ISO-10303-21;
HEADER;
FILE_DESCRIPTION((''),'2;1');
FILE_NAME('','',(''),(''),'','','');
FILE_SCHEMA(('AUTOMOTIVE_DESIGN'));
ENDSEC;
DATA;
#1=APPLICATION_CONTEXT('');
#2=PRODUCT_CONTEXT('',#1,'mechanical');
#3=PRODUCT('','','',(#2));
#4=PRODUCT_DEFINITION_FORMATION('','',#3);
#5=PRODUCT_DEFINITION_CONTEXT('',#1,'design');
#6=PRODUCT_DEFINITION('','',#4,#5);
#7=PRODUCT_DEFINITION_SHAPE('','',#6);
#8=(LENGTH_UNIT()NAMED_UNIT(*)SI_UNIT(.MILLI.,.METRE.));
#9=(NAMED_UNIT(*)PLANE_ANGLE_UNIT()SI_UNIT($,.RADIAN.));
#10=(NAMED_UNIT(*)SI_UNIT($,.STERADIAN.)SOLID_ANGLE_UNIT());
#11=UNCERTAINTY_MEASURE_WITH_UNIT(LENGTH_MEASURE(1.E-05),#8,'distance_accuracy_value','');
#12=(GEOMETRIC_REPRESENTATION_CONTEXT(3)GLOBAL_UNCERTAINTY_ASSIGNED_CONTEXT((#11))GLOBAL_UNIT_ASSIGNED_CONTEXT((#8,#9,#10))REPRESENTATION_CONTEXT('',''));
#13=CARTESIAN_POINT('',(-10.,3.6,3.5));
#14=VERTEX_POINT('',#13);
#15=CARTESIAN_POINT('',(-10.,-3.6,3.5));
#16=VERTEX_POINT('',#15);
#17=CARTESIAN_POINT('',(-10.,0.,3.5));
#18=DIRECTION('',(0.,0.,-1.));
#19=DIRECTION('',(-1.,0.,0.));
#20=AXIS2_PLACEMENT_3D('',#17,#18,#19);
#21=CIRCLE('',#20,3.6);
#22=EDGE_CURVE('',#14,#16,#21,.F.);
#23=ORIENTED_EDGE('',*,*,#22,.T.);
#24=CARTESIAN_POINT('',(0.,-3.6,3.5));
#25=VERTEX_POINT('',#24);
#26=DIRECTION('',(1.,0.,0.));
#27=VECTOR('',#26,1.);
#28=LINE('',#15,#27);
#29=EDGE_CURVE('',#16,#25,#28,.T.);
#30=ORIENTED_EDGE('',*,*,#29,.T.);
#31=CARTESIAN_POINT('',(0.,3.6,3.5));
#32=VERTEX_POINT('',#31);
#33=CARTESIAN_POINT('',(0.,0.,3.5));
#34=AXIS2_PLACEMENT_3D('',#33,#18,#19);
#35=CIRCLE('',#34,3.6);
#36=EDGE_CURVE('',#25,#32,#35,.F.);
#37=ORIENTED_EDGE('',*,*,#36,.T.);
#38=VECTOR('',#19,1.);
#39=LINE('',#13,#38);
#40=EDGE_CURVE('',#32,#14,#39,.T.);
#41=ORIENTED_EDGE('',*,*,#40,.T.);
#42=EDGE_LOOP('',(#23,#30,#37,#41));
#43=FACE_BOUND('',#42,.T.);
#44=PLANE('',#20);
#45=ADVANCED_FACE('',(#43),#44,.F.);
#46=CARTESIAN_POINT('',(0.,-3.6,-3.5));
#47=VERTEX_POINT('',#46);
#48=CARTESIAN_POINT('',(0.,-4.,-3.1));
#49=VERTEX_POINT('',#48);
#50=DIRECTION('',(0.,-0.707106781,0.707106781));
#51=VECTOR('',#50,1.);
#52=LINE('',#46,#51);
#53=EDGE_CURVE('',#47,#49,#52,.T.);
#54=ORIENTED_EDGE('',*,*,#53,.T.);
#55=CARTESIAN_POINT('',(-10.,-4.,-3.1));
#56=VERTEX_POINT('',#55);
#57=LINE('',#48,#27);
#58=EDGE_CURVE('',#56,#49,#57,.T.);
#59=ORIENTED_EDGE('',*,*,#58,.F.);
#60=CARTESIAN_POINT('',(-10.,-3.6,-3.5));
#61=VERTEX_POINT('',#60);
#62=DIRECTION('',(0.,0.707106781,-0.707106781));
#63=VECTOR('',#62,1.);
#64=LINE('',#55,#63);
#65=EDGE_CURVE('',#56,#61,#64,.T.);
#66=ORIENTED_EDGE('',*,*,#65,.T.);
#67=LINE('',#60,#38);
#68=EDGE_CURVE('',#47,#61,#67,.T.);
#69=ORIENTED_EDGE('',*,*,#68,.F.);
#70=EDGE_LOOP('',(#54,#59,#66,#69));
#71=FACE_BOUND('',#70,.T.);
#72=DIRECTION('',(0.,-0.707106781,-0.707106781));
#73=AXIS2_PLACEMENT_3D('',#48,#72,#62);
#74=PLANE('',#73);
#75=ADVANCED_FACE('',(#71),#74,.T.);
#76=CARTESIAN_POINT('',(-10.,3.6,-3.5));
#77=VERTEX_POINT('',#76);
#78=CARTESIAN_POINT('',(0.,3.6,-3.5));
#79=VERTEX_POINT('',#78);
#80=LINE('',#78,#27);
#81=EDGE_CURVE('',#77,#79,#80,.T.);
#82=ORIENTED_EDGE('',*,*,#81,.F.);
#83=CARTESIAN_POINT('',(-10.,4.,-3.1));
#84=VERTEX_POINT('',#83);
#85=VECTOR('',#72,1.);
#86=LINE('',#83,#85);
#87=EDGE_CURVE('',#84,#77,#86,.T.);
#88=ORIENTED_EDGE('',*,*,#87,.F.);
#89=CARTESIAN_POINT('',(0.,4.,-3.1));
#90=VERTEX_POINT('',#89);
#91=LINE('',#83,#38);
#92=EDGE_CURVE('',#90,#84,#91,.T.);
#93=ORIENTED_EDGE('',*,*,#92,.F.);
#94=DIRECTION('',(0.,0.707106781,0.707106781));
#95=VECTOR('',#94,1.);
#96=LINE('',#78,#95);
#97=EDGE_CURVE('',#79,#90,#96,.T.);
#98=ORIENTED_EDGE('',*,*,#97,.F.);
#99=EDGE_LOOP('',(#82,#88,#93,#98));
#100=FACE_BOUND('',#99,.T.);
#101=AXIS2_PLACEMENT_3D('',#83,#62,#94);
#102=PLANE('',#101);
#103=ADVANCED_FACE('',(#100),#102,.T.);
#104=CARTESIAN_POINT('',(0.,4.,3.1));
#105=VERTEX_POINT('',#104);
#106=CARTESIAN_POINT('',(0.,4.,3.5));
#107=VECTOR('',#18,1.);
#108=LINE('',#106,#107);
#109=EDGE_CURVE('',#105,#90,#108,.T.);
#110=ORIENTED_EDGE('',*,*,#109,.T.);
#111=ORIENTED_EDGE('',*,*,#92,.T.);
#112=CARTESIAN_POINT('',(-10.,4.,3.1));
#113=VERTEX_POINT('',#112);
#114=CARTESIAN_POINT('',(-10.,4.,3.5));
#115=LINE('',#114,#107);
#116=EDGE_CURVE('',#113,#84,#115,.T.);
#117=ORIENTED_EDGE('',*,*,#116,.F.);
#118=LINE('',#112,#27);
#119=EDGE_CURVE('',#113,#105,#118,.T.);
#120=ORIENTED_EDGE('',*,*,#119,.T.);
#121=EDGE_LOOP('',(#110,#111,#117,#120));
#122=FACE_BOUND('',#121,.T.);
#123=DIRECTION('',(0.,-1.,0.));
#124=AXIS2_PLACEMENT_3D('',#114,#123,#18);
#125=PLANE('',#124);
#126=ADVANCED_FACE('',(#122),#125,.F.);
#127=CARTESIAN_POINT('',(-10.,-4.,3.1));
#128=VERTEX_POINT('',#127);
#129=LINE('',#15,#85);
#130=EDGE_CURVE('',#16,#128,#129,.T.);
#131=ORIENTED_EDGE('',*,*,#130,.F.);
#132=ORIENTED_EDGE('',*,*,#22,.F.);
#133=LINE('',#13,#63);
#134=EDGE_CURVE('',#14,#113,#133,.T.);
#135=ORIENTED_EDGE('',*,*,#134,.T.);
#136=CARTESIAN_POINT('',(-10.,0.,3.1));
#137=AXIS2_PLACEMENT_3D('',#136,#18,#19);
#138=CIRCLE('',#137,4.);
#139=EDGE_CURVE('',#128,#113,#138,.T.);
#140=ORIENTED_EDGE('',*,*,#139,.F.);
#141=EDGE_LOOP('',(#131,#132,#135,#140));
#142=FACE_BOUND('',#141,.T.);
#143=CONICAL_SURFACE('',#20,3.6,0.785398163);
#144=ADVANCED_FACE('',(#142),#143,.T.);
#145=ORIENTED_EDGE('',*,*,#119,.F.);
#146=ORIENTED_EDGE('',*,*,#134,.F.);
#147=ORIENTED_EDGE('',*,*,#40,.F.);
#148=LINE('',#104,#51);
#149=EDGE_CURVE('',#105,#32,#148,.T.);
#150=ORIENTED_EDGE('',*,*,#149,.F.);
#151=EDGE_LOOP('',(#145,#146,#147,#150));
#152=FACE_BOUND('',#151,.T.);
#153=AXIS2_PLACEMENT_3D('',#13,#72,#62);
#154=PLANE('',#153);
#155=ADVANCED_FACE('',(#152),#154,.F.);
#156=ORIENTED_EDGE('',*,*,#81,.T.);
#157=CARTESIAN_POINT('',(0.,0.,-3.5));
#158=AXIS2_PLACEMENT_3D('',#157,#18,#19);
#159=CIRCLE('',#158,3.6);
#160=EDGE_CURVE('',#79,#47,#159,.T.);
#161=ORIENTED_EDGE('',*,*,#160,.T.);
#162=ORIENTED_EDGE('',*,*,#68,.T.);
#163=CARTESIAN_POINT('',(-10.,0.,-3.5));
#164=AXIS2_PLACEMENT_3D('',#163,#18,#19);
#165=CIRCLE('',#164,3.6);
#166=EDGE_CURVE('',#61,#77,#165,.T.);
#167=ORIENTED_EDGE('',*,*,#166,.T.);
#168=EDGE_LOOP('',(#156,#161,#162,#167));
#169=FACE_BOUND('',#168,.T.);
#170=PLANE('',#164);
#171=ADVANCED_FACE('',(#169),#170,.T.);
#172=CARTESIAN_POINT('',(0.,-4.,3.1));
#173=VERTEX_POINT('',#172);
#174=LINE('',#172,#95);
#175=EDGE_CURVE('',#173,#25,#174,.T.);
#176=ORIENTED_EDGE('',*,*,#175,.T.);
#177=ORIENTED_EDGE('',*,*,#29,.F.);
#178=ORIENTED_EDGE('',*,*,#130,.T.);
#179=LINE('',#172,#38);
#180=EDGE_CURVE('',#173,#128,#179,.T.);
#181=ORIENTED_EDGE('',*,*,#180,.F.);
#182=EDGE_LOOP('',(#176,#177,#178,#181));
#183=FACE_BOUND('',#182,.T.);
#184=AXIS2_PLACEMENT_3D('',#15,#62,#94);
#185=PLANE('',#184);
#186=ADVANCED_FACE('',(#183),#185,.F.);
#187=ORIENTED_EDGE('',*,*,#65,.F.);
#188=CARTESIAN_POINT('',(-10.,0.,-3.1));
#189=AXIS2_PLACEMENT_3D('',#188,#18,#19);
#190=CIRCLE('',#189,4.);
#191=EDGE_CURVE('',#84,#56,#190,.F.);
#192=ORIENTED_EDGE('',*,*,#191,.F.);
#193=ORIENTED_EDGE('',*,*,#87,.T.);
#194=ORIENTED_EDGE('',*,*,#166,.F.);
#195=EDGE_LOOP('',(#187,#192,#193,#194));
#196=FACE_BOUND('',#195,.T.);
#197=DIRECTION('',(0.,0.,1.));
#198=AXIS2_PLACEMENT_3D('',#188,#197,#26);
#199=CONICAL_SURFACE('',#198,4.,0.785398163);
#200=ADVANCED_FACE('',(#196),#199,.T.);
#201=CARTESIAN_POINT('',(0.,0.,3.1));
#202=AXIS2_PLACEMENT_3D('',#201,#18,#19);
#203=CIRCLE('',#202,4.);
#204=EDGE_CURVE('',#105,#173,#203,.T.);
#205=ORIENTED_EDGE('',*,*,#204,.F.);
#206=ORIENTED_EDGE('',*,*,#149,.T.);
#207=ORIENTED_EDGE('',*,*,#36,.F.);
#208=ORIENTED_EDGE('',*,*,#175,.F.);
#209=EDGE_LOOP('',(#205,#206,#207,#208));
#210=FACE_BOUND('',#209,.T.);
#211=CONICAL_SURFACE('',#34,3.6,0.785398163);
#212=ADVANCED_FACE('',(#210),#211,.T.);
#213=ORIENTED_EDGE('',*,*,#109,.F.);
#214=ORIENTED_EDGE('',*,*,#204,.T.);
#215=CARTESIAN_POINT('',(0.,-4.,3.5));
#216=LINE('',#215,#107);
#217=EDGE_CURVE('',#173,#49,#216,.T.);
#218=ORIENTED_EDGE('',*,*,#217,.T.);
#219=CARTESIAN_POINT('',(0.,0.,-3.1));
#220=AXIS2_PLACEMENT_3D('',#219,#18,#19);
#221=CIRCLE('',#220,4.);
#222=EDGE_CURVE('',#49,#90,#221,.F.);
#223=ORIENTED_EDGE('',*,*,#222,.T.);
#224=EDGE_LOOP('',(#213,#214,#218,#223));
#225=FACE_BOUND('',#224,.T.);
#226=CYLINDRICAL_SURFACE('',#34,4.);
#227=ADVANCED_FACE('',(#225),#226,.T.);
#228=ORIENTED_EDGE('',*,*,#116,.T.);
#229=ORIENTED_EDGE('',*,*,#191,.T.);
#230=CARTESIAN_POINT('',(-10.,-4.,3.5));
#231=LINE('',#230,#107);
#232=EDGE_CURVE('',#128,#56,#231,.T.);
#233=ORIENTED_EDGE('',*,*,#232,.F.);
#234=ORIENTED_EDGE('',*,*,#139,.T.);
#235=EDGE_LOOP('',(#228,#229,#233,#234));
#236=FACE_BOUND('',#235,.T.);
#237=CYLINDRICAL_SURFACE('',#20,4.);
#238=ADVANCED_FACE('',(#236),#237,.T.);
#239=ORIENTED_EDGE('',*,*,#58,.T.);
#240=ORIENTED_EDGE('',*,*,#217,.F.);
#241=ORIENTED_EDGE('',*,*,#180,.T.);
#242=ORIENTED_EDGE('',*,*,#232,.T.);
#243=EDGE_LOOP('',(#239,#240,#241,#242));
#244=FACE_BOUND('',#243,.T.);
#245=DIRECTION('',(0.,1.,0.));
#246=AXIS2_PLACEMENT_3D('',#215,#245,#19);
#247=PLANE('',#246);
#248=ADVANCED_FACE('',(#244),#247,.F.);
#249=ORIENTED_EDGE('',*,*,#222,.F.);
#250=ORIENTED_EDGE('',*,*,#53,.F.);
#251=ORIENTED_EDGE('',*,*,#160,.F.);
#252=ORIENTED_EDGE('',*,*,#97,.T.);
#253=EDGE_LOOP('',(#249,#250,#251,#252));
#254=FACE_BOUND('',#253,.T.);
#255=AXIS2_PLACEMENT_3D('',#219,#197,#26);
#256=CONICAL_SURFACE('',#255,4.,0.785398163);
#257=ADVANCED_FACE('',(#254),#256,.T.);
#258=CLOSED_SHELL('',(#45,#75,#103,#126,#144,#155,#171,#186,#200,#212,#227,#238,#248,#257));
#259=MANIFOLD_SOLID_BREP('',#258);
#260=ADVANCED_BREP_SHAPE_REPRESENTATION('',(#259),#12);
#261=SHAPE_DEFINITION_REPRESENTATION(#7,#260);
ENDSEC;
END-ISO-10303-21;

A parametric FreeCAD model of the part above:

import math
import FreeCAD as App
import Part
import Sketcher

V = App.Vector
Q = App.Units.Quantity


def edges_at(feature, points):
    """Names of the edges that pass closest to the given points."""
    edges = feature.Shape.Edges
    near = lambda p: min(range(len(edges)), key=lambda i: edges[i].distToShape(Part.Vertex(*p))[0])
    return sorted({f"Edge{near(p) + 1}" for p in points})

doc = App.newDocument("Part")
params = doc.addObject("Spreadsheet::Sheet", "Params")
for row, (alias, value) in enumerate([
    ("sketch1_radius", "4 mm"),
    ("sketch1_width", "10 mm"),
    ("pad1_length", "7 mm"),
    ("chamfer_size", "0.4 mm"),
], start=1):
    params.set(f"A{row}", alias)
    params.set(f"B{row}", "=" + value)
    params.setAlias(f"B{row}", alias)

body = doc.addObject("PartDesign::Body", "Body")

sketch1 = body.newObject("Sketcher::SketchObject", "Sketch")
sketch1.AttachmentSupport = (doc.getObject("XY_Plane"), [""])
sketch1.MapMode = "FlatFace"
sketch1.addGeometry([
    Part.LineSegment(V(0, 4, 0), V(-10, 4, 0)),
    Part.ArcOfCircle(Part.Circle(V(-10, 0, 0), V(0, 0, 1), 4), math.radians(90), math.radians(270)),
    Part.LineSegment(V(-10, -4, 0), V(0, -4, 0)),
    Part.ArcOfCircle(Part.Circle(V(0, 0, 0), V(0, 0, 1), 4), math.radians(-90), math.radians(90)),
], False)
sketch1.addConstraint([
    Sketcher.Constraint("Tangent", 0, 2, 1, 1),
    Sketcher.Constraint("Tangent", 1, 2, 2, 1),
    Sketcher.Constraint("Tangent", 2, 2, 3, 1),
    Sketcher.Constraint("Tangent", 3, 2, 0, 1),
    Sketcher.Constraint("Horizontal", 0),
    Sketcher.Constraint("Horizontal", 2),
    Sketcher.Constraint("Coincident", 3, 3, -1, 1),
    Sketcher.Constraint("Radius", 1, Q("4 mm")),
    Sketcher.Constraint("DistanceX", 0, 2, 0, 1, Q("10 mm")),
])
sketch1.setExpression("Constraints[7]", "Params.sketch1_radius")
sketch1.setExpression("Constraints[8]", "Params.sketch1_width")
pad1 = body.newObject("PartDesign::Pad", "Pad")
pad1.Profile = sketch1
pad1.setExpression("Length", "Params.pad1_length")
pad1.Midplane = True
doc.recompute()

chamfer = body.newObject("PartDesign::Chamfer", "Chamfer")
chamfer.Base = (pad1, edges_at(pad1, [
    (4, 0, 3.5),
    (-5, 4, 3.5),
    (-14, 0, 3.5),
    (-5, 4, -3.5),
    (4, 0, -3.5),
    (-5, -4, -3.5),
    (-14, 0, -3.5),
    (-5, -4, 3.5),
]))
chamfer.setExpression("Size", "Params.chamfer_size")

doc.recompute()
